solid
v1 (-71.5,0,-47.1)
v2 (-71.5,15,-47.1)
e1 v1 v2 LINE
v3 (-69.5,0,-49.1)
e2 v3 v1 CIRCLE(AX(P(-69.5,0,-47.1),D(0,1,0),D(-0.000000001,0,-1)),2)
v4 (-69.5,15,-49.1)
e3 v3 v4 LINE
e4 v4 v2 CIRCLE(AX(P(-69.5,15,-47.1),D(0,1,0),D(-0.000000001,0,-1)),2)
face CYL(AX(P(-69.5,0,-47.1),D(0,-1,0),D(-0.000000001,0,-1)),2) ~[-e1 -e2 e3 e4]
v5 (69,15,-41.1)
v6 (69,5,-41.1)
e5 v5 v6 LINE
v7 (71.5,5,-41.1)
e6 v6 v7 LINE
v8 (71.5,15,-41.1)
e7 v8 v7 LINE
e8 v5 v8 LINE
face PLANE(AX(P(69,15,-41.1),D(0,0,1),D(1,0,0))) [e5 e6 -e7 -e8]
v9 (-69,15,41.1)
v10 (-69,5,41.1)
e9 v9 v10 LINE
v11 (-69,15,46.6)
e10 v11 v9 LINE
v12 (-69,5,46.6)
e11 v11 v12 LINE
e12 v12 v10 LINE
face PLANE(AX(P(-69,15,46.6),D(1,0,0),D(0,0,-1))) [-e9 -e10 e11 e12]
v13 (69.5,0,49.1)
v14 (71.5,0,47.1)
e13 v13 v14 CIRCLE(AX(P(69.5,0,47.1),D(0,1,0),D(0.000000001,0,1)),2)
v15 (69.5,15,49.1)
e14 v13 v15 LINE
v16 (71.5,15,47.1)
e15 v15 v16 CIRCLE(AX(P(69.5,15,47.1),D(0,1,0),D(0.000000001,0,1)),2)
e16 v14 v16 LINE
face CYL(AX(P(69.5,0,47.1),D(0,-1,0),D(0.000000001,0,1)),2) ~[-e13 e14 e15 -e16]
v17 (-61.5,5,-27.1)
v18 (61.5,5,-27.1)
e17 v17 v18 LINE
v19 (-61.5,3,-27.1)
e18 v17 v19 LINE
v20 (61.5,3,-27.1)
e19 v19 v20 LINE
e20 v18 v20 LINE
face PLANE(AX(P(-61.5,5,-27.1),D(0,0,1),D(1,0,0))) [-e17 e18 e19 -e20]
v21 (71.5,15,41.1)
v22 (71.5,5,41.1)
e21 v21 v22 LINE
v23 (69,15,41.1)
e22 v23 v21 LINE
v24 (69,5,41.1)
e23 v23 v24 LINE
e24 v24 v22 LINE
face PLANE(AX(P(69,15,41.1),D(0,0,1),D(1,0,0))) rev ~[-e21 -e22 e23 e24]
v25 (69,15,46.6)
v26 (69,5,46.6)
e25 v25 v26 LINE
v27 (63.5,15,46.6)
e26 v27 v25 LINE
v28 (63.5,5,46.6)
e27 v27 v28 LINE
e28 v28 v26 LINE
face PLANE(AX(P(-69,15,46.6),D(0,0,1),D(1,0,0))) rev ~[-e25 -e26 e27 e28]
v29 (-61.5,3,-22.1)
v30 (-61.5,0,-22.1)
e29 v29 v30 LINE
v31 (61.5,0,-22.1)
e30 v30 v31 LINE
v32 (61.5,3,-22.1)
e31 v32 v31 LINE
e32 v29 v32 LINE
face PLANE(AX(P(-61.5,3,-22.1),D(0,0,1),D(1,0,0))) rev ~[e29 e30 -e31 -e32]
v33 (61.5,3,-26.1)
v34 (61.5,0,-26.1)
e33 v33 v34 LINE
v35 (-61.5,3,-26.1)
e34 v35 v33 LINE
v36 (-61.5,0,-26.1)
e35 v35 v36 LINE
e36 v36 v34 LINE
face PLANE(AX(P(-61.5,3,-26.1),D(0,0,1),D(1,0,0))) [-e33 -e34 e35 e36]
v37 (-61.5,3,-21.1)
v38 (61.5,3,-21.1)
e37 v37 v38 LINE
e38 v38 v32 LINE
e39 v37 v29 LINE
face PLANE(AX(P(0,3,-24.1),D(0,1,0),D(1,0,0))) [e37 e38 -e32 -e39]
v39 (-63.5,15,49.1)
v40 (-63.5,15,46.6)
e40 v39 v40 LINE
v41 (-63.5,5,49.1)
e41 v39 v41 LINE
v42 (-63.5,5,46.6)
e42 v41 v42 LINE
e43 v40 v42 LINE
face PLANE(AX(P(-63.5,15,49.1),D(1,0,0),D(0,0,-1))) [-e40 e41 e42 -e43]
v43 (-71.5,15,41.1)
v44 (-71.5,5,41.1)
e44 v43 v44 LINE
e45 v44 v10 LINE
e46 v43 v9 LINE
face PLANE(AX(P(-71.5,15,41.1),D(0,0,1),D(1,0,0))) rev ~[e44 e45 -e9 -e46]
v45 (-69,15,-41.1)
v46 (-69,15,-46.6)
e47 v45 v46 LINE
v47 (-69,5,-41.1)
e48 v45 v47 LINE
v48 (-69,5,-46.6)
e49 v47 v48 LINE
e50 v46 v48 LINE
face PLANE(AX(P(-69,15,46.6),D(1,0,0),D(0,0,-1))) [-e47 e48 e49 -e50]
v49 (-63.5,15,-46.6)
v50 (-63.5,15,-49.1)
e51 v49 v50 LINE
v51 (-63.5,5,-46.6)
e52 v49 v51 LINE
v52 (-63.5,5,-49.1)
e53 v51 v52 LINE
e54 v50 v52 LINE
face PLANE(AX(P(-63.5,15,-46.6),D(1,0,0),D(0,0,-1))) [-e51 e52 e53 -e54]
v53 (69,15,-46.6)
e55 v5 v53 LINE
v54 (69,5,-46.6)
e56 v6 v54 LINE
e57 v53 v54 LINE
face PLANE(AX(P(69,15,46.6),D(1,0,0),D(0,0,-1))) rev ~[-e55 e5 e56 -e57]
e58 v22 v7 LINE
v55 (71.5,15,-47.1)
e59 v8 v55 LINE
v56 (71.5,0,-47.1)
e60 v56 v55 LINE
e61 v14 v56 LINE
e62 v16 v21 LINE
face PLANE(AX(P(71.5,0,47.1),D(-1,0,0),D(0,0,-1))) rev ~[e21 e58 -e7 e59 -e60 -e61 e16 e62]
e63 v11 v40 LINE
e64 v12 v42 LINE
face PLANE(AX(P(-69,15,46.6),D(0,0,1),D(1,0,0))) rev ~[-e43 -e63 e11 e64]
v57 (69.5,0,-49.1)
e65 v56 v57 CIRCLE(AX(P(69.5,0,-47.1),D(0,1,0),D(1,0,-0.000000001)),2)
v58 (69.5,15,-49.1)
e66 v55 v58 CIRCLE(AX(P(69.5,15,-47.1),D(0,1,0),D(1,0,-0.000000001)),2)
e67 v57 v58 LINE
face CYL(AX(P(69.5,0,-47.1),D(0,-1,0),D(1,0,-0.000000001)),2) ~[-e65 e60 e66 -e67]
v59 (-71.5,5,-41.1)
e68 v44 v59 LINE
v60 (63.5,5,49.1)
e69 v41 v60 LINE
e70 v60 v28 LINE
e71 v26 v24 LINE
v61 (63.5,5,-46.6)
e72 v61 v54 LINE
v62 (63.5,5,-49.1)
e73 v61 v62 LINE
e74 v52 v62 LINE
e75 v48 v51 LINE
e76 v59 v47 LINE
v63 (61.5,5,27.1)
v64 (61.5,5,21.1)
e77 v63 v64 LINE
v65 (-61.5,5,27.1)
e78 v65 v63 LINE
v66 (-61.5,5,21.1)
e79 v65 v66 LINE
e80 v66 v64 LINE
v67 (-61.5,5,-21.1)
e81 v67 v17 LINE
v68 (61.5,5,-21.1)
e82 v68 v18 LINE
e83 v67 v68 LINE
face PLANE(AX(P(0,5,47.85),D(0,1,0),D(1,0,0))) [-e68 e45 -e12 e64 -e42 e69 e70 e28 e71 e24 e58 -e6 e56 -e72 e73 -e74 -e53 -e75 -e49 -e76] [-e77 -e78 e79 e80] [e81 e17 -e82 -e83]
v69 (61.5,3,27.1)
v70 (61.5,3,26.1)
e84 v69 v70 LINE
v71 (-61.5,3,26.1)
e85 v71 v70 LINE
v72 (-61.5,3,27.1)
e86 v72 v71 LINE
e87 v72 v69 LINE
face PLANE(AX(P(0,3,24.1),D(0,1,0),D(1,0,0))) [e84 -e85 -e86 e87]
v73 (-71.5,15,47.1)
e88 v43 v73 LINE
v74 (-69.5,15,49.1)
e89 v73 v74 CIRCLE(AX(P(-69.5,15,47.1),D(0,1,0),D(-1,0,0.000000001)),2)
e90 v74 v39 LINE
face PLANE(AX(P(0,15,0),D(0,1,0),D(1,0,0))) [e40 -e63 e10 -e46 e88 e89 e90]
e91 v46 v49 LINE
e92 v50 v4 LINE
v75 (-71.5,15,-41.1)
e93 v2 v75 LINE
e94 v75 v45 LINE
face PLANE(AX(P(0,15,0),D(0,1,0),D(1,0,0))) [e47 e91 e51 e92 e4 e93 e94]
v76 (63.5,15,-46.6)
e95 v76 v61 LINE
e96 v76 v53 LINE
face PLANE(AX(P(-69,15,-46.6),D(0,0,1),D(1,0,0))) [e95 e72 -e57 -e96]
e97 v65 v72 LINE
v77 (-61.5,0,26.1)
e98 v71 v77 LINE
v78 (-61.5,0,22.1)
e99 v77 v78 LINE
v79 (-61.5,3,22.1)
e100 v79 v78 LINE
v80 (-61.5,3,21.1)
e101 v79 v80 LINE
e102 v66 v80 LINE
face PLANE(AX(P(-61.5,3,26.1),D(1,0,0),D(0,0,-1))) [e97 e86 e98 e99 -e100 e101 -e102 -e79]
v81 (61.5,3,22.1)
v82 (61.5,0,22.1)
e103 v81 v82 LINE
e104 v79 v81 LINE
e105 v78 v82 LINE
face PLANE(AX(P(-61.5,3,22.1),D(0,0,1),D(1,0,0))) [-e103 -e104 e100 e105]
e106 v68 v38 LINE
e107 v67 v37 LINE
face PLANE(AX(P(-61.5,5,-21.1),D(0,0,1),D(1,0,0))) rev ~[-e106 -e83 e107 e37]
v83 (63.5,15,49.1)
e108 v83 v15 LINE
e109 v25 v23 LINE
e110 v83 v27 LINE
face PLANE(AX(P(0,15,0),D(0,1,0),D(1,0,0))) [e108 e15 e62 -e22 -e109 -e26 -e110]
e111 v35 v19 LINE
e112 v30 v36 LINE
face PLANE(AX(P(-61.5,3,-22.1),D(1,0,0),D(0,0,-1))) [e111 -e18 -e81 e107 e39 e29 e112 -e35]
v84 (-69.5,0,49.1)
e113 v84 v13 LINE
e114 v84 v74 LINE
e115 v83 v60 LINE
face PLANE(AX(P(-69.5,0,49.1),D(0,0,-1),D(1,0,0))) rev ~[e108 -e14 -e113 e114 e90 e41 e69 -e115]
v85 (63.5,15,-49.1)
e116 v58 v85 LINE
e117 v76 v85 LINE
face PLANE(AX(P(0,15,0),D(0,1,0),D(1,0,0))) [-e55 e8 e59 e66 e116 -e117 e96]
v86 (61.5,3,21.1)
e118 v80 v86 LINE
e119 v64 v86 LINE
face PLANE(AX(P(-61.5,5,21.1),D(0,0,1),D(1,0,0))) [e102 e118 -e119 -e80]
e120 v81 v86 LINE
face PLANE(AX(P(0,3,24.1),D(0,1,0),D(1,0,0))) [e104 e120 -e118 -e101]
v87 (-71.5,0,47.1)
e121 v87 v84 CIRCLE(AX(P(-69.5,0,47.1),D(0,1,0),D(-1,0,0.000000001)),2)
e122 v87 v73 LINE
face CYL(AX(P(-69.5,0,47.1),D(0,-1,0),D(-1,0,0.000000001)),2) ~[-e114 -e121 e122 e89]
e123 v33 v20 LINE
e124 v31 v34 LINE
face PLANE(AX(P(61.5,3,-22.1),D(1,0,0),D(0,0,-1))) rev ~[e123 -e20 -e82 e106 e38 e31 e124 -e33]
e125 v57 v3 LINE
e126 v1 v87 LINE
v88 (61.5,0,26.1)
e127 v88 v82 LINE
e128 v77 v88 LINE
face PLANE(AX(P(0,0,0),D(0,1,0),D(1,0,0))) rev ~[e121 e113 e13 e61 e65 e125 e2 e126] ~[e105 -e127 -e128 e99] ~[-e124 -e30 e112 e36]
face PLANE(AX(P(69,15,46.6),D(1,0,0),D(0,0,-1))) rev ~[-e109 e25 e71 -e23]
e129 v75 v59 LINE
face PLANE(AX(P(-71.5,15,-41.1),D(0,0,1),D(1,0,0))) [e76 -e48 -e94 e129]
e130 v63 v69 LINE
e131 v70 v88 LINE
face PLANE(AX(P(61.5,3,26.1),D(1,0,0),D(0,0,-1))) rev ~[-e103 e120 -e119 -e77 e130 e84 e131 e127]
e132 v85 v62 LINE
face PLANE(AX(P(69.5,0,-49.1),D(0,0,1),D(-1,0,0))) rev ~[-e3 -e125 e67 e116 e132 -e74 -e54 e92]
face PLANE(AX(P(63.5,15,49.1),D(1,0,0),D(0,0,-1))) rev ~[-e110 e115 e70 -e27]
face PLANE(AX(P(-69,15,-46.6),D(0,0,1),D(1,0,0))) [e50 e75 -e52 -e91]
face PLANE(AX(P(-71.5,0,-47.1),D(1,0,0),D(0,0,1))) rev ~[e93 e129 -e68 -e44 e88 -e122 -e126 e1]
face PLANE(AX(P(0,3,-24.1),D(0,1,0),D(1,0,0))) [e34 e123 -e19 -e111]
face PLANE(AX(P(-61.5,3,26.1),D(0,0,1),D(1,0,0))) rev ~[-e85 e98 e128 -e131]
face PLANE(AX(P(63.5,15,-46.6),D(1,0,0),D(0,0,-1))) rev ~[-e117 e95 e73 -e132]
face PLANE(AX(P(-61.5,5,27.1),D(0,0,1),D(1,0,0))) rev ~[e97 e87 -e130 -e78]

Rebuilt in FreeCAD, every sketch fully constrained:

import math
import FreeCAD as App
import Part
import Sketcher
from FreeCAD import Vector
Q = App.Units.Quantity


def add_polygon(sketch, points):
    """Adds a closed chain of lines whose ends are joined by coincident constraints."""
    first, n = sketch.GeometryCount, len(points)
    for a, b in zip(points, points[1:] + points[:1]):
        sketch.addGeometry(Part.LineSegment(App.Vector(*a, 0), App.Vector(*b, 0)), False)
    for i in range(n):
        sketch.addConstraint(Sketcher.Constraint("Coincident", first + i, 2, first + (i + 1) % n, 1))

doc = App.newDocument("Part")
body = doc.addObject("PartDesign::Body", "Body")

# Sketch on XZ plane
sketch1 = body.newObject("Sketcher::SketchObject", "Sketch")
sketch1.AttachmentSupport = (doc.getObject("XZ_Plane"), [""])
sketch1.MapMode = "FlatFace"
sketch1.addGeometry([
    Part.LineSegment(Vector(-69.5, 49.1, 0), Vector(69.5, 49.1, 0)),  # 0
    Part.ArcOfCircle(Part.Circle(Vector(69.5, 47.1, 0), Vector(0, 0, 1), 2), math.radians(0), math.radians(90)),  # 1
    Part.LineSegment(Vector(71.5, 47.1, 0), Vector(71.5, -47.1, 0)),  # 2
    Part.ArcOfCircle(Part.Circle(Vector(69.5, -47.1, 0), Vector(0, 0, 1), 2), math.radians(-90), math.radians(0)),  # 3
    Part.LineSegment(Vector(69.5, -49.1, 0), Vector(-69.5, -49.1, 0)),  # 4
    Part.ArcOfCircle(Part.Circle(Vector(-69.5, -47.1, 0), Vector(0, 0, 1), 2), math.radians(-180), math.radians(-90)),  # 5
    Part.LineSegment(Vector(-71.5, -47.1, 0), Vector(-71.5, 47.1, 0)),  # 6
    Part.ArcOfCircle(Part.Circle(Vector(-69.5, 47.1, 0), Vector(0, 0, 1), 2), math.radians(90), math.radians(180)),  # 7
], False)
sketch1.addConstraint([
    Sketcher.Constraint("Tangent", 0, 2, 1, 2),
    Sketcher.Constraint("Tangent", 1, 1, 2, 1),
    Sketcher.Constraint("Tangent", 2, 2, 3, 2),
    Sketcher.Constraint("Tangent", 3, 1, 4, 1),
    Sketcher.Constraint("Tangent", 4, 2, 5, 2),
    Sketcher.Constraint("Tangent", 5, 1, 6, 1),
    Sketcher.Constraint("Tangent", 6, 2, 7, 2),
    Sketcher.Constraint("Tangent", 7, 1, 0, 1),
    Sketcher.Constraint("Horizontal", 0),
    Sketcher.Constraint("Vertical", 2),
    Sketcher.Constraint("Horizontal", 4),
    Sketcher.Constraint("Vertical", 6),
    Sketcher.Constraint("Equal", 1, 3),
    Sketcher.Constraint("Equal", 3, 5),
    Sketcher.Constraint("Equal", 5, 7),
    Sketcher.Constraint("Symmetric", 1, 3, 5, 3, -1, 1),
    Sketcher.Constraint("Radius", 1, Q("2 mm")),
    Sketcher.Constraint("DistanceX", 0, 1, 0, 2, Q("139 mm")),
    Sketcher.Constraint("DistanceY", 2, 2, 2, 1, Q("94.2 mm")),
])
pad1 = body.newObject("PartDesign::Pad", "Pad")
pad1.Profile = sketch1
pad1.Length = 15
pad1.Reversed = True

# Sketch on XZ plane
sketch2 = body.newObject("Sketcher::SketchObject", "Sketch001")
sketch2.AttachmentSupport = (doc.getObject("XZ_Plane"), [""])
sketch2.MapMode = "FlatFace"
sketch2.AttachmentOffset = App.Placement(Vector(0, 0, -15), App.Rotation())
add_polygon(sketch2, [(-69, -46.6), (-69, 46.6), (69, 46.6), (69, -46.6)])  # lines 0-3
sketch2.addConstraint([
    Sketcher.Constraint("Vertical", 0),
    Sketcher.Constraint("Horizontal", 1),
    Sketcher.Constraint("Vertical", 2),
    Sketcher.Constraint("Horizontal", 3),
    Sketcher.Constraint("Symmetric", 0, 2, 2, 2, -1, 1),
    Sketcher.Constraint("DistanceX", 1, 1, 1, 2, Q("138 mm")),
    Sketcher.Constraint("DistanceY", 0, 1, 0, 2, Q("93.2 mm")),
])
pocket1 = body.newObject("PartDesign::Pocket", "Pocket")
pocket1.Profile = sketch2
pocket1.Length = 10
pocket1.Reversed = True

# Sketch on XZ plane
sketch3 = body.newObject("Sketcher::SketchObject", "Sketch002")
sketch3.AttachmentSupport = (doc.getObject("XZ_Plane"), [""])
sketch3.MapMode = "FlatFace"
sketch3.AttachmentOffset = App.Placement(Vector(0, 0, -15), App.Rotation())
add_polygon(sketch3, [(-71.5, -41.1), (-71.5, 41.1), (-69, 41.1), (-69, -41.1)])  # lines 0-3
add_polygon(sketch3, [(-63.5, -49.1), (-63.5, -46.6), (63.5, -46.6), (63.5, -49.1)])  # lines 4-7
add_polygon(sketch3, [(69, -41.1), (69, 41.1), (71.5, 41.1), (71.5, -41.1)])  # lines 8-11
add_polygon(sketch3, [(-63.5, 46.6), (-63.5, 49.1), (63.5, 49.1), (63.5, 46.6)])  # lines 12-15
sketch3.addConstraint([
    Sketcher.Constraint("Vertical", 0),
    Sketcher.Constraint("Horizontal", 1),
    Sketcher.Constraint("Vertical", 2),
    Sketcher.Constraint("Horizontal", 3),
    Sketcher.Constraint("Vertical", 4),
    Sketcher.Constraint("Horizontal", 5),
    Sketcher.Constraint("Vertical", 6),
    Sketcher.Constraint("Horizontal", 7),
    Sketcher.Constraint("Vertical", 8),
    Sketcher.Constraint("Horizontal", 9),
    Sketcher.Constraint("Vertical", 10),
    Sketcher.Constraint("Horizontal", 11),
    Sketcher.Constraint("Vertical", 12),
    Sketcher.Constraint("Horizontal", 13),
    Sketcher.Constraint("Vertical", 14),
    Sketcher.Constraint("Horizontal", 15),
    Sketcher.Constraint("Symmetric", 2, 2, 8, 2, -1, 1),
    Sketcher.Constraint("Symmetric", 0, 2, 10, 2, -1, 1),
    Sketcher.Constraint("Symmetric", 6, 2, 12, 2, -1, 1),
    Sketcher.Constraint("Symmetric", 4, 2, 14, 2, -1, 1),
    Sketcher.Constraint("Horizontal", 1, 2, 8, 2),
    Sketcher.Constraint("Vertical", 7, 2, 12, 2),
    Sketcher.Constraint("Equal", 11, 4),
    Sketcher.Constraint("DistanceX", 5, 1, 5, 2, Q("127 mm")),
    Sketcher.Constraint("DistanceX", 1, 1, 1, 2, Q("2.5 mm")),
    Sketcher.Constraint("DistanceY", 0, 1, 0, 2, Q("82.2 mm")),
    Sketcher.Constraint("DistanceX", 1, 2, -1, 1, Q("69 mm")),
    Sketcher.Constraint("DistanceY", 6, 2, 2, 2, Q("8 mm")),
])
pocket2 = body.newObject("PartDesign::Pocket", "Pocket001")
pocket2.Profile = sketch3
pocket2.Length = 10
pocket2.Reversed = True

# Sketch on XZ plane
sketch4 = body.newObject("Sketcher::SketchObject", "Sketch003")
sketch4.AttachmentSupport = (doc.getObject("XZ_Plane"), [""])
sketch4.MapMode = "FlatFace"
sketch4.AttachmentOffset = App.Placement(Vector(0, 0, -5), App.Rotation())
add_polygon(sketch4, [(-61.5, -27.1), (-61.5, -21.1), (61.5, -21.1), (61.5, -27.1)])  # lines 0-3
add_polygon(sketch4, [(-61.5, 21.1), (-61.5, 27.1), (61.5, 27.1), (61.5, 21.1)])  # lines 4-7
sketch4.addConstraint([
    Sketcher.Constraint("Vertical", 0),
    Sketcher.Constraint("Horizontal", 1),
    Sketcher.Constraint("Vertical", 2),
    Sketcher.Constraint("Horizontal", 3),
    Sketcher.Constraint("Vertical", 4),
    Sketcher.Constraint("Horizontal", 5),
    Sketcher.Constraint("Vertical", 6),
    Sketcher.Constraint("Horizontal", 7),
    Sketcher.Constraint("Symmetric", 2, 2, 4, 2, -1, 1),
    Sketcher.Constraint("Symmetric", 0, 2, 6, 2, -1, 1),
    Sketcher.Constraint("Vertical", 3, 2, 4, 2),
    Sketcher.Constraint("DistanceX", 1, 1, 1, 2, Q("123 mm")),
    Sketcher.Constraint("DistanceY", 0, 1, 0, 2, Q("6 mm")),
    Sketcher.Constraint("DistanceY", 0, 2, -1, 1, Q("21.1 mm")),
])
pocket3 = body.newObject("PartDesign::Pocket", "Pocket002")
pocket3.Profile = sketch4
pocket3.Length = 2
pocket3.Reversed = True

# Sketch on XZ plane
sketch5 = body.newObject("Sketcher::SketchObject", "Sketch004")
sketch5.AttachmentSupport = (doc.getObject("XZ_Plane"), [""])
sketch5.MapMode = "FlatFace"
sketch5.AttachmentOffset = App.Placement(Vector(0, 0, -3), App.Rotation())
add_polygon(sketch5, [(-61.5, -26.1), (-61.5, -22.1), (61.5, -22.1), (61.5, -26.1)])  # lines 0-3
add_polygon(sketch5, [(-61.5, 22.1), (-61.5, 26.1), (61.5, 26.1), (61.5, 22.1)])  # lines 4-7
sketch5.addConstraint([
    Sketcher.Constraint("Vertical", 0),
    Sketcher.Constraint("Horizontal", 1),
    Sketcher.Constraint("Vertical", 2),
    Sketcher.Constraint("Horizontal", 3),
    Sketcher.Constraint("Vertical", 4),
    Sketcher.Constraint("Horizontal", 5),
    Sketcher.Constraint("Vertical", 6),
    Sketcher.Constraint("Horizontal", 7),
    Sketcher.Constraint("Symmetric", 2, 2, 4, 2, -1, 1),
    Sketcher.Constraint("Symmetric", 0, 2, 6, 2, -1, 1),
    Sketcher.Constraint("Vertical", 3, 2, 4, 2),
    Sketcher.Constraint("DistanceX", 1, 1, 1, 2, Q("123 mm")),
    Sketcher.Constraint("DistanceY", 0, 1, 0, 2, Q("4 mm")),
    Sketcher.Constraint("DistanceY", 0, 2, -1, 1, Q("22.1 mm")),
])
pocket4 = body.newObject("PartDesign::Pocket", "Pocket003")
pocket4.Profile = sketch5
pocket4.Length = 3
pocket4.Reversed = True

doc.recompute()
